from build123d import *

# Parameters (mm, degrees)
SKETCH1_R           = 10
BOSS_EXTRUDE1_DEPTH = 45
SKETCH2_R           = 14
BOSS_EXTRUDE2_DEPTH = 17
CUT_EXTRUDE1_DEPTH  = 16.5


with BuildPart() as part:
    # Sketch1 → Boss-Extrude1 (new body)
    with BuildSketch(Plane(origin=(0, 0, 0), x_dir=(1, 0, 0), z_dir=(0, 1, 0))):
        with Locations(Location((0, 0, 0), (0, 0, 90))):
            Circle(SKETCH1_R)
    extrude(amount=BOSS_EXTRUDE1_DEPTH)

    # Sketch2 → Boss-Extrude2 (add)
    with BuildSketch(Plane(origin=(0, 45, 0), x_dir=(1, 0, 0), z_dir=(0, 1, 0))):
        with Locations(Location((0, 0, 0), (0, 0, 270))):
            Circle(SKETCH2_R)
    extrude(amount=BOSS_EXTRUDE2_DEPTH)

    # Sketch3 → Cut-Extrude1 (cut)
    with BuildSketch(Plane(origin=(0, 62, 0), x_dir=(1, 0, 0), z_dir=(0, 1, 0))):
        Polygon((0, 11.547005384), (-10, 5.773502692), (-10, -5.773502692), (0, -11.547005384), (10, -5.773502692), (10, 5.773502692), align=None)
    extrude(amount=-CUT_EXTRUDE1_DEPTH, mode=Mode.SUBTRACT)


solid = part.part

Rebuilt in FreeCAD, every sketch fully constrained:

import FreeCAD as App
import Part
import Sketcher
Q = App.Units.Quantity


def add_polygon(sketch, points):
    """Adds a closed chain of lines whose ends are joined by coincident constraints."""
    first, n = sketch.GeometryCount, len(points)
    for a, b in zip(points, points[1:] + points[:1]):
        sketch.addGeometry(Part.LineSegment(App.Vector(*a, 0), App.Vector(*b, 0)), False)
    for i in range(n):
        sketch.addConstraint(Sketcher.Constraint("Coincident", first + i, 2, first + (i + 1) % n, 1))

doc = App.newDocument("Part")
body = doc.addObject("PartDesign::Body", "Body")

sketch1 = body.newObject("Sketcher::SketchObject", "Sketch")
sketch1.AttachmentSupport = (doc.getObject("XZ_Plane"), [""])
sketch1.MapMode = "FlatFace"
sketch1.addGeometry(Part.Circle(App.Vector(0, 0, 0), App.Vector(0, 0, 1), 10), False)
sketch1.addConstraint([
    Sketcher.Constraint("Coincident", 0, 3, -1, 1),
    Sketcher.Constraint("Diameter", 0, 20.0),
])
pad1 = body.newObject("PartDesign::Pad", "Pad")
pad1.Profile = sketch1
pad1.Length = 45
pad1.Reversed = True

sketch2 = body.newObject("Sketcher::SketchObject", "Sketch001")
sketch2.AttachmentSupport = (doc.getObject("XZ_Plane"), [""])
sketch2.MapMode = "FlatFace"
sketch2.AttachmentOffset = App.Placement(App.Vector(0, 0, -45), App.Rotation())
sketch2.addGeometry(Part.Circle(App.Vector(0, 0, 0), App.Vector(0, 0, 1), 14), False)
sketch2.addConstraint([
    Sketcher.Constraint("Coincident", 0, 3, -1, 1),
    Sketcher.Constraint("Diameter", 0, 28.0),
])
pad2 = body.newObject("PartDesign::Pad", "Pad001")
pad2.Profile = sketch2
pad2.Length = 17
pad2.Reversed = True

sketch3 = body.newObject("Sketcher::SketchObject", "Sketch002")
sketch3.AttachmentSupport = (doc.getObject("XZ_Plane"), [""])
sketch3.MapMode = "FlatFace"
sketch3.AttachmentOffset = App.Placement(App.Vector(0, 0, -62), App.Rotation())
add_polygon(sketch3, [(0, -12), (-10, -6), (-10, 6), (0, 12), (10, 6), (10, -6)])
sketch3.addConstraint([
    Sketcher.Constraint("Vertical", 1),
    Sketcher.Constraint("Vertical", 4),
    Sketcher.Constraint("Symmetric", 0, 2, 3, 2, -1, 1),
    Sketcher.Constraint("Symmetric", 2, 2, 5, 2, -1, 1),
    Sketcher.Constraint("PointOnObject", 2, 2, -2),
    Sketcher.Constraint("Parallel", 2, 5),
    Sketcher.Constraint("Horizontal", 1, 2, 3, 2),
    Sketcher.Constraint("Angle", 0, Q("150 deg")),
    Sketcher.Constraint("DistanceX", 0, 2, -1, 1, 10.0),
    Sketcher.Constraint("DistanceY", 1, 1, 1, 2, 11.547005),
])
pocket1 = body.newObject("PartDesign::Pocket", "Pocket")
pocket1.Profile = sketch3
pocket1.Length = 16.5
pocket1.Reversed = True

doc.recompute()
